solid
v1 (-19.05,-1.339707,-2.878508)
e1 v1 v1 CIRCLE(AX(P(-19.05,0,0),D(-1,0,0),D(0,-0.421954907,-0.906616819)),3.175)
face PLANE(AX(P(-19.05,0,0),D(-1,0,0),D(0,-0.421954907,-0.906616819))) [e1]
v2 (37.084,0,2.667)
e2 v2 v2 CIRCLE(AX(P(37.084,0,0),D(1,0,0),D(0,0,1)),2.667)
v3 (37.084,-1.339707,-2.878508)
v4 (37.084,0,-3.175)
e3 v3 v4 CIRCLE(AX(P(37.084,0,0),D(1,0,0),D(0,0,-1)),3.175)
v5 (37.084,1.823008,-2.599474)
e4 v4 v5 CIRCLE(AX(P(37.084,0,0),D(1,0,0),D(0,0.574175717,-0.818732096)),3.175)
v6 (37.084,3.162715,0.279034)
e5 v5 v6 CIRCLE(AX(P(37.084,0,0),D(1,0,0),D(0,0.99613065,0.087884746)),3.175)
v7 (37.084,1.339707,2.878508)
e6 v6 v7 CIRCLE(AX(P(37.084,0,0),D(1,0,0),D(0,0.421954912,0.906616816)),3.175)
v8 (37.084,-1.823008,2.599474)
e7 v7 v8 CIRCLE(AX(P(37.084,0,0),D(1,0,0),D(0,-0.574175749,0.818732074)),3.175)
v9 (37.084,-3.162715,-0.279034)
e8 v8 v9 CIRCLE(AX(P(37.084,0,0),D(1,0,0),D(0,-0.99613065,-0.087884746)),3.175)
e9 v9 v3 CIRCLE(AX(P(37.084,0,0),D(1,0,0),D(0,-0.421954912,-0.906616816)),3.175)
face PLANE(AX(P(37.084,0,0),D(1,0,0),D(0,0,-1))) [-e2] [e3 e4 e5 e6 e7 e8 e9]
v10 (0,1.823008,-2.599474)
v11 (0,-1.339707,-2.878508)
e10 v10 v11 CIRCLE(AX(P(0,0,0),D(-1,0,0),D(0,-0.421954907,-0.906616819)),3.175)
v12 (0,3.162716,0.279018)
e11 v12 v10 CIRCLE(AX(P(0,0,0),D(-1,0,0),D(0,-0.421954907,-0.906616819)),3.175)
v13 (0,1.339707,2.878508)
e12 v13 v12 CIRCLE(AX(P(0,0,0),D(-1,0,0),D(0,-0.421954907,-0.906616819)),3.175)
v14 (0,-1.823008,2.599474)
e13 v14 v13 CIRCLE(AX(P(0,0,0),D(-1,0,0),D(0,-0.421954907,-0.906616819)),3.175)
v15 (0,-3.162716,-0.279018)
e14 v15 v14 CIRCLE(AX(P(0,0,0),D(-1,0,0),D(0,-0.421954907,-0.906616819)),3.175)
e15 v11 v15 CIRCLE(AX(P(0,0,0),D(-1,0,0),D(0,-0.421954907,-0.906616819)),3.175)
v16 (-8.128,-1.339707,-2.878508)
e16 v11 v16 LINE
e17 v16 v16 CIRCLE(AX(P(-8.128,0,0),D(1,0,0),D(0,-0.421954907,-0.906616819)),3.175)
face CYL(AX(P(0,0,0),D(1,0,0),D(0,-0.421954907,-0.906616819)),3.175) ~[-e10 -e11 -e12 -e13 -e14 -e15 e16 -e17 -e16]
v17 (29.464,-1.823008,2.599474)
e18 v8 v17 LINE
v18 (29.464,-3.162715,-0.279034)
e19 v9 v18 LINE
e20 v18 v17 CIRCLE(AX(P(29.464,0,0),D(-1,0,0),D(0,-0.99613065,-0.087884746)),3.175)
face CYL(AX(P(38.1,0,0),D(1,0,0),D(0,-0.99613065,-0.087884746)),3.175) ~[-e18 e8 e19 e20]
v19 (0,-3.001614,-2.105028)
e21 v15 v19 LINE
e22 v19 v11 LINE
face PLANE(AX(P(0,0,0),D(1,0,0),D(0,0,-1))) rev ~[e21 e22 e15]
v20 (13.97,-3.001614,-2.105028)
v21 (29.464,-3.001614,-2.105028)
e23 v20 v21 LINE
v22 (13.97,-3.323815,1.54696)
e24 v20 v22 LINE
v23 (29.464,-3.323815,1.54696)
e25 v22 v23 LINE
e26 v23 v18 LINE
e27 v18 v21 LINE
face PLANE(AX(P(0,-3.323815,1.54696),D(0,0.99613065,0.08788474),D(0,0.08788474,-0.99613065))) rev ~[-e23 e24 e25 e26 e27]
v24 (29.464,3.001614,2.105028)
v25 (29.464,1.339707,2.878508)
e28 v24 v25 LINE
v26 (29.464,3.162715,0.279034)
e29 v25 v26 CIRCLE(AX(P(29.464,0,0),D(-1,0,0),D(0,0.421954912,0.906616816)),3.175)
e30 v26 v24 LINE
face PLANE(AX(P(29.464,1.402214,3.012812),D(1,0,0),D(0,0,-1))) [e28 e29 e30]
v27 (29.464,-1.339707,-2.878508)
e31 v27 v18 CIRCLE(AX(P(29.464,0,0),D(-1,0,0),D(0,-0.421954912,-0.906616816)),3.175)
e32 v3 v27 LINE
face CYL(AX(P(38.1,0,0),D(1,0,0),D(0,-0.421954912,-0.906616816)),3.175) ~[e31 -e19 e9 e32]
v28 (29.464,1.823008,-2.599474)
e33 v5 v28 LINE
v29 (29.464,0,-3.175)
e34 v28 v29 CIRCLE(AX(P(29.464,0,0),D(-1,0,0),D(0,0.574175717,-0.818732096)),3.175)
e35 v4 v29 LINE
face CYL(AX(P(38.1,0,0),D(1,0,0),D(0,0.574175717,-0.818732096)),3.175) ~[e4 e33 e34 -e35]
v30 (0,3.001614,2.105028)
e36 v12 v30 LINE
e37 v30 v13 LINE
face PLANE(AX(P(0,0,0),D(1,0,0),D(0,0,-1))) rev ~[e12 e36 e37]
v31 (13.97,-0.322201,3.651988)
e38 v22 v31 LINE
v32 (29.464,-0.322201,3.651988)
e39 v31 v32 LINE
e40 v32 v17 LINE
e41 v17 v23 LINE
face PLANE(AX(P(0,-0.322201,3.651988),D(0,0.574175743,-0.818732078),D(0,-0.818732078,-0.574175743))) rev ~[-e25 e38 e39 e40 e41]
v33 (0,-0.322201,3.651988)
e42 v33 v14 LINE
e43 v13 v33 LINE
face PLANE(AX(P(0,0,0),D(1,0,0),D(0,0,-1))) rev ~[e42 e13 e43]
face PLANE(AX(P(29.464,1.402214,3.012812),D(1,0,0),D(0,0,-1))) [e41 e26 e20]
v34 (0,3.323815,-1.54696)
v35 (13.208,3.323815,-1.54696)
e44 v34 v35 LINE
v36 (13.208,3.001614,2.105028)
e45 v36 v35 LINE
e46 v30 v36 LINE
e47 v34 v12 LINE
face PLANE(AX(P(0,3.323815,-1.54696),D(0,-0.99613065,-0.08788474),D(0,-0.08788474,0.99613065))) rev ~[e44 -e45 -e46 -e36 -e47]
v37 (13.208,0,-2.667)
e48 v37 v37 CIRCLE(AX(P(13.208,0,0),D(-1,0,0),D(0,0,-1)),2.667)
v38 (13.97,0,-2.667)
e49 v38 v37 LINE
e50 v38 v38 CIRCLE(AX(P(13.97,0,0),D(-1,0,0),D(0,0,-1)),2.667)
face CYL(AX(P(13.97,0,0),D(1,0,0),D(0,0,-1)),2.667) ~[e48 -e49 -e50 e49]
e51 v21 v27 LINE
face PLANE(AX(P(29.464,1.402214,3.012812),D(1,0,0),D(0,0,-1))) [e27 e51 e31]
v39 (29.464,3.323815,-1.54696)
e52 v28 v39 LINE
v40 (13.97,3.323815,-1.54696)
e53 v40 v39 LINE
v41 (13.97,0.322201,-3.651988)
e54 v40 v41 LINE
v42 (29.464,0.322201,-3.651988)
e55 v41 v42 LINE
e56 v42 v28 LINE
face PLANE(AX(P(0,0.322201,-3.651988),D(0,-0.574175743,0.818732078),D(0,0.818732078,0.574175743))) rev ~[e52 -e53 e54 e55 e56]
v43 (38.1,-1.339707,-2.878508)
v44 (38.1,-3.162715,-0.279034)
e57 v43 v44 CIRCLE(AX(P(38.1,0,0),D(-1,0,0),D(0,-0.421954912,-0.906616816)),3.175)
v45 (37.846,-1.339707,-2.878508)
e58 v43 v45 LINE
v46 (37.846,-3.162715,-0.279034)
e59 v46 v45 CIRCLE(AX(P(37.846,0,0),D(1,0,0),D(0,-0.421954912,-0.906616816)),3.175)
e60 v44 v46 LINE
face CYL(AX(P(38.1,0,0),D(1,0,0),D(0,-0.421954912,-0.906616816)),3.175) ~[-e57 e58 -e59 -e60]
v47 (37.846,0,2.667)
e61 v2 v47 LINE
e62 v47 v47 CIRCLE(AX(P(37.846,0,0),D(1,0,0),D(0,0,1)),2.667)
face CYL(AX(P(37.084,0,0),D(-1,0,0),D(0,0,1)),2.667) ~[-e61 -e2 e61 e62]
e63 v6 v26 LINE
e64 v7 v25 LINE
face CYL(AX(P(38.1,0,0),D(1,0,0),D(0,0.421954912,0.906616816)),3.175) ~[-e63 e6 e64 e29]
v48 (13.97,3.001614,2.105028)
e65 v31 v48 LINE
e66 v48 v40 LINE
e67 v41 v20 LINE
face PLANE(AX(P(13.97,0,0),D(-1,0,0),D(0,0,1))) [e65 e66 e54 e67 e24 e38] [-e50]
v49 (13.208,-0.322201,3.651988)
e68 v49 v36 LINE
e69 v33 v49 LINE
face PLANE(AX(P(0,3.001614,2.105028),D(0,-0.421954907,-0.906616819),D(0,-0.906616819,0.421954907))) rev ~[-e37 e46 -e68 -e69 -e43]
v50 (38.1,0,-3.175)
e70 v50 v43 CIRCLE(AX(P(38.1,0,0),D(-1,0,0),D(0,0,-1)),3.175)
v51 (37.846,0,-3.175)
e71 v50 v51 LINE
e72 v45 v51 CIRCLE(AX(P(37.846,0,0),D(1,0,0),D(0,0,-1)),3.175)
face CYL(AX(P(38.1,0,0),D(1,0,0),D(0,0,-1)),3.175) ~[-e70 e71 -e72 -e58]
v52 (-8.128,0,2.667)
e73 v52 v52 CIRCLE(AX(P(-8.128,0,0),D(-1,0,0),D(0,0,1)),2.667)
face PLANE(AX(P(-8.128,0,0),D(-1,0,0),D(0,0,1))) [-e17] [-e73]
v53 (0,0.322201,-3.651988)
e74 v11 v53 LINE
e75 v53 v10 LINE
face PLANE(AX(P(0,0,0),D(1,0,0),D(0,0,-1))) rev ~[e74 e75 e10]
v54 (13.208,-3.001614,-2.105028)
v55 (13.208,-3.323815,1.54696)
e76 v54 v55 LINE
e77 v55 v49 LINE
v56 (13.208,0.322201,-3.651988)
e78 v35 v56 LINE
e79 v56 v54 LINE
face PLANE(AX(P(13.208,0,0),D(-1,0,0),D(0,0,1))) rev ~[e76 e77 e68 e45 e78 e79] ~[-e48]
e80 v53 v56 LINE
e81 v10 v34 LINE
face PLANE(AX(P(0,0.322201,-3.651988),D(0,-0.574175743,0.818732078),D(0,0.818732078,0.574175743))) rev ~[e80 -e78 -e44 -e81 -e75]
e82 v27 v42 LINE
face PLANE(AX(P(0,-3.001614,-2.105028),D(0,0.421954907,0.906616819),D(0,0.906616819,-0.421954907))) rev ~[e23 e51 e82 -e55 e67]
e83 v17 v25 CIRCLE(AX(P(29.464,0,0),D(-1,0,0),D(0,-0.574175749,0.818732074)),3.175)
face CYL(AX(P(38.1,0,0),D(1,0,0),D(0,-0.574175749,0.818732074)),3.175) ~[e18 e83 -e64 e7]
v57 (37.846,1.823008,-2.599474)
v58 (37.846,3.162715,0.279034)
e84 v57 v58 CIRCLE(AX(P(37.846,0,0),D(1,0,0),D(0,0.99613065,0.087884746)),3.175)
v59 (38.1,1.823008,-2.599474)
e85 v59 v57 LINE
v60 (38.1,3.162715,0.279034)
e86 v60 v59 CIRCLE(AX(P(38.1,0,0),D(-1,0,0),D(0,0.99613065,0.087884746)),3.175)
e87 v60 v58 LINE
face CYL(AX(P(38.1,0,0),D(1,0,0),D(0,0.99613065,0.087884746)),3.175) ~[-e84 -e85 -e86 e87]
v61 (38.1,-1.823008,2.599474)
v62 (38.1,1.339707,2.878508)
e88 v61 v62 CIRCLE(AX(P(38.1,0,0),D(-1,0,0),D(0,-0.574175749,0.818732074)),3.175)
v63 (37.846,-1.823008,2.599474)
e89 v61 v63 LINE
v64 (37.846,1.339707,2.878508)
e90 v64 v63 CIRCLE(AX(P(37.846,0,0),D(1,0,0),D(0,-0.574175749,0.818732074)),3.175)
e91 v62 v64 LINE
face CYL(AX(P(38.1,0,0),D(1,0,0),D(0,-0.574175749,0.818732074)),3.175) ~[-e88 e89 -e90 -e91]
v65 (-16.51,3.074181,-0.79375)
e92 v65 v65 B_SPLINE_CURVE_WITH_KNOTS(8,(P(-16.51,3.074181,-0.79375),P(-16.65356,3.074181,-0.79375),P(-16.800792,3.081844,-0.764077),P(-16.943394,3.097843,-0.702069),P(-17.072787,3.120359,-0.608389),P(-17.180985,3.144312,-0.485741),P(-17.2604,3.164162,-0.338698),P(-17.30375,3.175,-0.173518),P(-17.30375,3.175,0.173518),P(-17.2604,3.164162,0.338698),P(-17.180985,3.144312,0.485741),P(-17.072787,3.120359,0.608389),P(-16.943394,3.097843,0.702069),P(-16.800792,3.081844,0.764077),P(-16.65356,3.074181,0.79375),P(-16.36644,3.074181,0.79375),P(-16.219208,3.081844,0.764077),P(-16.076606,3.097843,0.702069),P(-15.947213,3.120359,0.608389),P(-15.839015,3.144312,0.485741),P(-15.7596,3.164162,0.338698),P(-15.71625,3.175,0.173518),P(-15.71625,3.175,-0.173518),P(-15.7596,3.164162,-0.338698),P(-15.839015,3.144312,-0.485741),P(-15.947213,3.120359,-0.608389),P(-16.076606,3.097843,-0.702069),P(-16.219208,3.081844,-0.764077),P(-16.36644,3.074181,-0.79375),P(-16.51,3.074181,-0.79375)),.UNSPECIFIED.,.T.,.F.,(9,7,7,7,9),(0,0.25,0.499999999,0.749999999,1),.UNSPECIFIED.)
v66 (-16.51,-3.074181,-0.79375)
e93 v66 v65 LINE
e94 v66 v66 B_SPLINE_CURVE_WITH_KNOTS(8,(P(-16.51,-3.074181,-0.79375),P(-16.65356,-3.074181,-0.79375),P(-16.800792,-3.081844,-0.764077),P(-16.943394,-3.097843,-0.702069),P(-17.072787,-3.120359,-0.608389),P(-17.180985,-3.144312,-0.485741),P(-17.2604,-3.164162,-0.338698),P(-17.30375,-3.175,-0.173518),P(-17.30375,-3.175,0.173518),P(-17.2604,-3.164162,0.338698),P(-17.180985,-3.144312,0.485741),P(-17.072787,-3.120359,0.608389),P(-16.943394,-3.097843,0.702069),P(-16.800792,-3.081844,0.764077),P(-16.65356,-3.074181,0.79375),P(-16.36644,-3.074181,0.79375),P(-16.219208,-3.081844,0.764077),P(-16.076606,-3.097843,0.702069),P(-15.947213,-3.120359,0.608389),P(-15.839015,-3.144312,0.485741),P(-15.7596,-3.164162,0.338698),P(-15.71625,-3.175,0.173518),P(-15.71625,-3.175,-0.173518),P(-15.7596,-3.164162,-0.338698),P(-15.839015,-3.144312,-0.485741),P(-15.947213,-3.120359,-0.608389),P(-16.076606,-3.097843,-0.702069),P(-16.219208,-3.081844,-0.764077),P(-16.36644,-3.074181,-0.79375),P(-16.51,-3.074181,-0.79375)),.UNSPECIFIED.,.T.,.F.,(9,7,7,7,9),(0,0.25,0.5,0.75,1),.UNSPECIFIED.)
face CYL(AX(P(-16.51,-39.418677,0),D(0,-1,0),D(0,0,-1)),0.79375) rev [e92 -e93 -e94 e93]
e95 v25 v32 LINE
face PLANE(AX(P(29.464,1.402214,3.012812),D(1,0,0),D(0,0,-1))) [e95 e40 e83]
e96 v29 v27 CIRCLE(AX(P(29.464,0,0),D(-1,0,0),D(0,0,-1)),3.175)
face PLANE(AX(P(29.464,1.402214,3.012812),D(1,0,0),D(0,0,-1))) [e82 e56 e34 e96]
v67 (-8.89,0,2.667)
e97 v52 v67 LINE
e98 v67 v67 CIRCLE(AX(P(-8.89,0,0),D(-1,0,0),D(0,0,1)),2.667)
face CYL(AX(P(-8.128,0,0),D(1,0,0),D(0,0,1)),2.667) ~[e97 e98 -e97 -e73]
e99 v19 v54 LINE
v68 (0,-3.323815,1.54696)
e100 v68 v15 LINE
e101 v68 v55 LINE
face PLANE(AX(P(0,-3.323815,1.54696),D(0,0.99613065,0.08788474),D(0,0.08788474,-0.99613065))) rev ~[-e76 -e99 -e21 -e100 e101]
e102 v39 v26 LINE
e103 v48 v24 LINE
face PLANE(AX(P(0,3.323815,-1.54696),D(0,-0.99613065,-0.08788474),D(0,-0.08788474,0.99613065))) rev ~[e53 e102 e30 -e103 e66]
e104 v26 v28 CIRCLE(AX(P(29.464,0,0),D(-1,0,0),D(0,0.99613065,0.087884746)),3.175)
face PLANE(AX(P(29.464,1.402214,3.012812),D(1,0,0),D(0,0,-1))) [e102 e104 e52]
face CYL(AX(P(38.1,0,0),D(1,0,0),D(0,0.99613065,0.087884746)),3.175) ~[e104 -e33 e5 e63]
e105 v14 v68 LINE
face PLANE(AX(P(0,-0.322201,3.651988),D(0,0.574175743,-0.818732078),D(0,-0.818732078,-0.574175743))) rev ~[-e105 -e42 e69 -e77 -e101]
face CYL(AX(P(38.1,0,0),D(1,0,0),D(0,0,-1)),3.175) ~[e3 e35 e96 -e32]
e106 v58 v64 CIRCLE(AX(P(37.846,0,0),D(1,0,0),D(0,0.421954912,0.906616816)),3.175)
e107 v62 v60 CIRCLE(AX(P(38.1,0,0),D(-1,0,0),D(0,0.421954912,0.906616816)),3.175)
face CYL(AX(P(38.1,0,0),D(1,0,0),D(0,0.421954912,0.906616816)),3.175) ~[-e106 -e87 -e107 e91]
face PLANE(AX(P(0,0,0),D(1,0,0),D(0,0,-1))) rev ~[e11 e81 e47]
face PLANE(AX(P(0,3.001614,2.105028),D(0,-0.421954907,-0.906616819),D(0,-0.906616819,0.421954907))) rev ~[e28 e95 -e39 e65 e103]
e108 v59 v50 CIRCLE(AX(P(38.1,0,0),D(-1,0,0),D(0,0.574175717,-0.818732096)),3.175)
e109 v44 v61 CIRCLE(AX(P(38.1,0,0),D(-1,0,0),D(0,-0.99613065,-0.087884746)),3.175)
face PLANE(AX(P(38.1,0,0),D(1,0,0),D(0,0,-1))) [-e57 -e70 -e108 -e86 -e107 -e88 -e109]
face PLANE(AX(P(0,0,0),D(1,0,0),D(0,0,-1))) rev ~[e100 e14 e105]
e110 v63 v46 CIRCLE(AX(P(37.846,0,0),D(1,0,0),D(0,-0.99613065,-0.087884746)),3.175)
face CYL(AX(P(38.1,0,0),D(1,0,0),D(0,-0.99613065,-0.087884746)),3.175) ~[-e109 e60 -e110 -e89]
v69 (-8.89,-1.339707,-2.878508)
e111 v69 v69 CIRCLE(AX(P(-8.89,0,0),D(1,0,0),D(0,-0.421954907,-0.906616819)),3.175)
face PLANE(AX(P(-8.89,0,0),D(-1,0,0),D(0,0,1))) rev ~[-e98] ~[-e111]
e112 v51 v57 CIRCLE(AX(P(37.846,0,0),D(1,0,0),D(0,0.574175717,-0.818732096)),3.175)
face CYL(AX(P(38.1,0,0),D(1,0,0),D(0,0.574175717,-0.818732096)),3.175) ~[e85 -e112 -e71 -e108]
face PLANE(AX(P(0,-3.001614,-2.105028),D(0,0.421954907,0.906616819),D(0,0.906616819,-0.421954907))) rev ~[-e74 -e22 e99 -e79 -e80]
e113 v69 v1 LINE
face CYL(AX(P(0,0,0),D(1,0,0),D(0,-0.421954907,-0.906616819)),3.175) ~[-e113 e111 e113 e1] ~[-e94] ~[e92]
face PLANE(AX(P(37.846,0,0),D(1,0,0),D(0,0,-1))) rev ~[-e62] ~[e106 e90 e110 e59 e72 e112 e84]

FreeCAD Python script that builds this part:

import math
import FreeCAD as App
import Part
import Sketcher
from FreeCAD import Vector
Q = App.Units.Quantity


def add_polygon(sketch, points):
    """Adds a closed chain of lines whose ends are joined by coincident constraints."""
    first, n = sketch.GeometryCount, len(points)
    for a, b in zip(points, points[1:] + points[:1]):
        sketch.addGeometry(Part.LineSegment(App.Vector(*a, 0), App.Vector(*b, 0)), False)
    for i in range(n):
        sketch.addConstraint(Sketcher.Constraint("Coincident", first + i, 2, first + (i + 1) % n, 1))

doc = App.newDocument("Part")
body = doc.addObject("PartDesign::Body", "Body")

# Sketch on YZ plane
sketch1 = body.newObject("Sketcher::SketchObject", "Sketch")
sketch1.AttachmentSupport = (doc.getObject("YZ_Plane"), [""])
sketch1.MapMode = "FlatFace"
add_polygon(sketch1, [(-3, -2.1), (0.3, -3.7), (3.3, -1.5), (3, 2.1), (-0.3, 3.7), (-3.3, 1.5)])  # lines 0-5
sketch1.addConstraint([
    Sketcher.Constraint("Symmetric", 0, 2, 3, 2, -1, 1),
    Sketcher.Constraint("Symmetric", 1, 2, 4, 2, -1, 1),
    Sketcher.Constraint("Symmetric", 2, 2, 5, 2, -1, 1),
    Sketcher.Constraint("Equal", 0, 1),
    Sketcher.Constraint("Equal", 1, 2),
    Sketcher.Constraint("DistanceX", -1, 1, 0, 2, 0.322201),
    Sketcher.Constraint("DistanceX", 2, 2, 1, 2, 0.322201),
    Sketcher.Constraint("DistanceY", 0, 2, -1, 1, 3.651988),
    Sketcher.Constraint("DistanceY", 1, 2, -1, 1, 1.54696),
])
pad1 = body.newObject("PartDesign::Pad", "Pad")
pad1.Profile = sketch1
pad1.Length = Q("1.5 in")

# Sketch on YZ plane
sketch2 = body.newObject("Sketcher::SketchObject", "Sketch001")
sketch2.AttachmentSupport = (doc.getObject("YZ_Plane"), [""])
sketch2.MapMode = "FlatFace"
sketch2.addGeometry(Part.Circle(Vector(0, 0, 0), Vector(0, 0, 1), 3.2), False)
sketch2.addConstraint([
    Sketcher.Constraint("Coincident", 0, 3, -1, 1),
    Sketcher.Constraint("Diameter", 0, Q("0.25 in")),
])
pad2 = body.newObject("PartDesign::Pad", "Pad001")
pad2.Profile = sketch2
pad2.Length = Q("0.75 in")
pad2.Reversed = True

# Sketch on XZ plane
sketch3 = body.newObject("Sketcher::SketchObject", "Sketch002")
sketch3.AttachmentSupport = (doc.getObject("XZ_Plane"), [""])
sketch3.MapMode = "FlatFace"
sketch3.addGeometry(Part.Circle(Vector(-16.5, 0, 0), Vector(0, 0, 1), 0.8), False)
sketch3.addConstraint([
    Sketcher.Constraint("PointOnObject", 0, 3, -1),
    Sketcher.Constraint("Diameter", 0, Q("0.0625 in")),
    Sketcher.Constraint("DistanceX", 0, 3, -1, 1, Q("0.65 in")),
])
pocket1 = body.newObject("PartDesign::Pocket", "Pocket")
pocket1.Profile = sketch3
pocket1.Type = "ThroughAll"
pocket1.Midplane = True

# Sketch on YZ plane
sketch4 = body.newObject("Sketcher::SketchObject", "Sketch003")
sketch4.AttachmentSupport = (doc.getObject("YZ_Plane"), [""])
sketch4.MapMode = "FlatFace"
sketch4.AttachmentOffset = App.Placement(Vector(0, 0, 1.5 * 25.4), App.Rotation())
sketch4.addGeometry([
    Part.ArcOfCircle(Part.Circle(Vector(0, 0, 0), Vector(0, 0, 1), 3.67), math.radians(-25), math.radians(35)),  # 0
    Part.ArcOfCircle(Part.Circle(Vector(0, 0, 0), Vector(0, 0, 1), 3.67), math.radians(35), math.radians(95)),  # 1
    Part.ArcOfCircle(Part.Circle(Vector(0, 0, 0), Vector(0, 0, 1), 3.67), math.radians(95), math.radians(155)),  # 2
    Part.ArcOfCircle(Part.Circle(Vector(0, 0, 0), Vector(0, 0, 1), 3.67), math.radians(155), math.radians(215)),  # 3
    Part.ArcOfCircle(Part.Circle(Vector(0, 0, 0), Vector(0, 0, 1), 3.67), math.radians(-145), math.radians(-90)),  # 4
    Part.ArcOfCircle(Part.Circle(Vector(0, 0, 0), Vector(0, 0, 1), 3.67), math.radians(-90), math.radians(-84.96)),  # 5
    Part.ArcOfCircle(Part.Circle(Vector(0, 0, 0), Vector(0, 0, 1), 3.67), math.radians(-85), math.radians(-25)),  # 6
    Part.ArcOfCircle(Part.Circle(Vector(0, 0, 0), Vector(0, 0, 1), 3.18), math.radians(65), math.radians(125)),  # 7
    Part.ArcOfCircle(Part.Circle(Vector(0, 0, 0), Vector(0, 0, 1), 3.17), math.radians(5), math.radians(65)),  # 8
    Part.ArcOfCircle(Part.Circle(Vector(0, 0, 0), Vector(0, 0, 1), 3.17), math.radians(-55), math.radians(5)),  # 9
    Part.ArcOfCircle(Part.Circle(Vector(0, 0, 0), Vector(0, 0, 1), 3.17), math.radians(-90), math.radians(-55)),  # 10
    Part.ArcOfCircle(Part.Circle(Vector(0, 0, 0), Vector(0, 0, 1), 3.18), math.radians(-115), math.radians(-90)),  # 11
    Part.ArcOfCircle(Part.Circle(Vector(0, 0, 0), Vector(0, 0, 1), 3.17), math.radians(-175), math.radians(-115)),  # 12
    Part.ArcOfCircle(Part.Circle(Vector(0, 0, 0), Vector(0, 0, 1), 3.17), math.radians(125), math.radians(185)),  # 13
], False)
sketch4.addConstraint([
    Sketcher.Constraint("Tangent", 0, 2, 1, 1),
    Sketcher.Constraint("Tangent", 1, 2, 2, 1),
    Sketcher.Constraint("Tangent", 2, 2, 3, 1),
    Sketcher.Constraint("Tangent", 3, 2, 4, 1),
    Sketcher.Constraint("Tangent", 4, 2, 5, 1),
    Sketcher.Constraint("Tangent", 5, 2, 6, 1),
    Sketcher.Constraint("Tangent", 6, 2, 0, 1),
    Sketcher.Constraint("Tangent", 7, 1, 8, 2),
    Sketcher.Constraint("Tangent", 8, 1, 9, 2),
    Sketcher.Constraint("Tangent", 9, 1, 10, 2),
    Sketcher.Constraint("Tangent", 10, 1, 11, 2),
    Sketcher.Constraint("Tangent", 11, 1, 12, 2),
    Sketcher.Constraint("Tangent", 12, 1, 13, 2),
    Sketcher.Constraint("Tangent", 13, 1, 7, 2),
    Sketcher.Constraint("Coincident", 0, 3, -1, 1),
    Sketcher.Constraint("Coincident", 2, 3, -1, 1),
    Sketcher.Constraint("Coincident", 4, 3, -1, 1),
    Sketcher.Constraint("Coincident", 7, 3, -1, 1),
    Sketcher.Constraint("Coincident", 9, 3, -1, 1),
    Sketcher.Constraint("Coincident", 11, 3, -1, 1),
    Sketcher.Constraint("PointOnObject", 4, 2, -2),
    Sketcher.Constraint("PointOnObject", 10, 1, -2),
    Sketcher.Constraint("Radius", 7, Q("0.125 in")),
    Sketcher.Constraint("Radius", 0, 3.666174),
    Sketcher.Constraint("DistanceX", 1, 2, -1, 1, 0.322201),
    Sketcher.Constraint("DistanceX", -1, 1, 5, 2, 0.322201),
    Sketcher.Constraint("DistanceX", 0, 2, 8, 1, 0.1611),
    Sketcher.Constraint("DistanceX", 8, 1, 6, 2, 0.1611),
    Sketcher.Constraint("DistanceY", 4, 2, 9, 1, 1.0667),
    Sketcher.Constraint("DistanceX", 12, 1, 3, 2, 0.1611),
    Sketcher.Constraint("DistanceX", 2, 2, 12, 1, 0.1611),
    Sketcher.Constraint("DistanceY", -1, 1, 0, 2, 2.105028),
    Sketcher.Constraint("DistanceY", -1, 1, 2, 2, 1.54696),
    Sketcher.Constraint("DistanceY", -1, 1, 7, 1, 2.878508),
    Sketcher.Constraint("DistanceY", 11, 1, -1, 1, 2.878508),
    Sketcher.Constraint("DistanceX", 13, 1, -1, 1, 1.823008),
])
pocket2 = body.newObject("PartDesign::Pocket", "Pocket001")
pocket2.Profile = sketch4
pocket2.Length = Q("0.34 in")

# Sketch on YZ plane
sketch5 = body.newObject("Sketcher::SketchObject", "Sketch004")
sketch5.AttachmentSupport = (doc.getObject("YZ_Plane"), [""])
sketch5.MapMode = "FlatFace"
sketch5.AttachmentOffset = App.Placement(Vector(0, 0, 1.46 * 25.4), App.Rotation())
add_polygon(sketch5, [(10.1, 10.5), (-10.1, 10.5), (-10.1, -10.5), (10.1, -10.5)])  # lines 0-3
sketch5.addGeometry(Part.Circle(Vector(0, 0, 0), Vector(0, 0, 1), 2.7), False)  # 4
sketch5.addConstraint([
    Sketcher.Constraint("Horizontal", 0),
    Sketcher.Constraint("Vertical", 1),
    Sketcher.Constraint("Horizontal", 2),
    Sketcher.Constraint("Vertical", 3),
    Sketcher.Constraint("Coincident", 4, 3, -1, 1),
    Sketcher.Constraint("Symmetric", 0, 2, 2, 2, -1, 1),
    Sketcher.Constraint("Diameter", 4, Q("0.21 in")),
    Sketcher.Constraint("DistanceX", 0, 2, 0, 1, 20.248),
    Sketcher.Constraint("DistanceY", 1, 2, 1, 1, 20.904),
])
pocket3 = body.newObject("PartDesign::Pocket", "Pocket002")
pocket3.Profile = sketch5
pocket3.Length = Q("0.03 in")
pocket3.Reversed = True

# Sketch on YZ plane
sketch6 = body.newObject("Sketcher::SketchObject", "Sketch005")
sketch6.AttachmentSupport = (doc.getObject("YZ_Plane"), [""])
sketch6.MapMode = "FlatFace"
sketch6.AttachmentOffset = App.Placement(Vector(0, 0, -0.32 * 25.4), App.Rotation())
add_polygon(sketch6, [(10.1, -10.5), (-10.1, -10.5), (-10.1, 10.5), (10.1, 10.5)])  # lines 0-3
sketch6.addGeometry(Part.Circle(Vector(0, 0, 0), Vector(0, 0, 1), 2.7), False)  # 4
sketch6.addConstraint([
    Sketcher.Constraint("Horizontal", 0),
    Sketcher.Constraint("Vertical", 1),
    Sketcher.Constraint("Horizontal", 2),
    Sketcher.Constraint("Vertical", 3),
    Sketcher.Constraint("Coincident", 4, 3, -1, 1),
    Sketcher.Constraint("Symmetric", 0, 2, 2, 2, -1, 1),
    Sketcher.Constraint("Diameter", 4, Q("0.21 in")),
    Sketcher.Constraint("DistanceX", 0, 2, 0, 1, 20.248),
    Sketcher.Constraint("DistanceY", 1, 1, 1, 2, 20.904),
])
pocket4 = body.newObject("PartDesign::Pocket", "Pocket003")
pocket4.Profile = sketch6
pocket4.Length = Q("0.03 in")

# Sketch on YZ plane
sketch7 = body.newObject("Sketcher::SketchObject", "Sketch006")
sketch7.AttachmentSupport = (doc.getObject("YZ_Plane"), [""])
sketch7.MapMode = "FlatFace"
sketch7.AttachmentOffset = App.Placement(Vector(0, 0, 0.55 * 25.4), App.Rotation())
add_polygon(sketch7, [(10.1, -10.5), (-10.1, -10.5), (-10.1, 10.5), (10.1, 10.5)])  # lines 0-3
sketch7.addGeometry(Part.Circle(Vector(0, 0, 0), Vector(0, 0, 1), 2.7), False)  # 4
sketch7.addConstraint([
    Sketcher.Constraint("Horizontal", 0),
    Sketcher.Constraint("Vertical", 1),
    Sketcher.Constraint("Horizontal", 2),
    Sketcher.Constraint("Vertical", 3),
    Sketcher.Constraint("Coincident", 4, 3, -1, 1),
    Sketcher.Constraint("Symmetric", 0, 2, 2, 2, -1, 1),
    Sketcher.Constraint("Diameter", 4, Q("0.21 in")),
    Sketcher.Constraint("DistanceX", 0, 2, 0, 1, 20.248),
    Sketcher.Constraint("DistanceY", 1, 1, 1, 2, 20.904),
])
pocket5 = body.newObject("PartDesign::Pocket", "Pocket004")
pocket5.Profile = sketch7
pocket5.Length = Q("0.03 in")

doc.recompute()
